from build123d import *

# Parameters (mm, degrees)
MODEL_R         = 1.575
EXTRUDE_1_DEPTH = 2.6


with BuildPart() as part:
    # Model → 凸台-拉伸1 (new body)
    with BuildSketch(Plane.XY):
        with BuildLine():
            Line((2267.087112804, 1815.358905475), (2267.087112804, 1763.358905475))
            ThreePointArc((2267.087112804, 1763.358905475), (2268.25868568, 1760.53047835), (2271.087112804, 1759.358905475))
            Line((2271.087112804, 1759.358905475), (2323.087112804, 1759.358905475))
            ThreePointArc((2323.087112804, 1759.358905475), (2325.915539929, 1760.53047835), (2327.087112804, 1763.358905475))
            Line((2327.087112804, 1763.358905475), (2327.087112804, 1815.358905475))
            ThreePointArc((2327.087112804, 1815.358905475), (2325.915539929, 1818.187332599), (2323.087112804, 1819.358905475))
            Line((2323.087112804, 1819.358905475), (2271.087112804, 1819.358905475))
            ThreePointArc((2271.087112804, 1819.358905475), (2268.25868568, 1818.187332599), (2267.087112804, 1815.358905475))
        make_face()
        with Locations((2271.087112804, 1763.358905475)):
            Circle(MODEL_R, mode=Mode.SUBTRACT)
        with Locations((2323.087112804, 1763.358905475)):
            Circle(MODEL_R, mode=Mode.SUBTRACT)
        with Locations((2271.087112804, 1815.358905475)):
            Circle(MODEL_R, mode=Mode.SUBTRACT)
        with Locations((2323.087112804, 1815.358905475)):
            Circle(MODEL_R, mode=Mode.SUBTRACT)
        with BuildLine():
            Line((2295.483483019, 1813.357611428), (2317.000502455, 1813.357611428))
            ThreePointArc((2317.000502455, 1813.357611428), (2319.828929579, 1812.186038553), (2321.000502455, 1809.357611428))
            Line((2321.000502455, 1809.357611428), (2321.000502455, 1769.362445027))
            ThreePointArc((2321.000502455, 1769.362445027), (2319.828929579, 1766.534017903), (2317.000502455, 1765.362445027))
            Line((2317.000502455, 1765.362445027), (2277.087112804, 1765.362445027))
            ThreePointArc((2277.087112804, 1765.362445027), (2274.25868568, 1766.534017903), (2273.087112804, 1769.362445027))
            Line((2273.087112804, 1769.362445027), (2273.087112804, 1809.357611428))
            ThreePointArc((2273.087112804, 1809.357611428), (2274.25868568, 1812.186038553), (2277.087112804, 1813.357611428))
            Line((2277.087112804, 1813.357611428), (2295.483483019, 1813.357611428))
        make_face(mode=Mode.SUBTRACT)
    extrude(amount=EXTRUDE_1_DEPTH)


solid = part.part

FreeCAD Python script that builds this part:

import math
import FreeCAD as App
import Part
import Sketcher
from FreeCAD import Vector
Q = App.Units.Quantity

doc = App.newDocument("Part")
body = doc.addObject("PartDesign::Body", "Body")

# Sketch on XY plane
sketch1 = body.newObject("Sketcher::SketchObject", "Sketch")
sketch1.AttachmentSupport = (doc.getObject("XY_Plane"), [""])
sketch1.MapMode = "FlatFace"
sketch1.addGeometry(Part.LineSegment(Vector(2267.1, 1815.4, 0), Vector(2267.1, 1763.4, 0)), False)
sketch1.addGeometry(Part.ArcOfCircle(Part.Circle(Vector(2271.1, 1763.4, 0), Vector(0, 0, 1), 4), math.radians(-180), math.radians(-90)), False)
sketch1.addGeometry(Part.LineSegment(Vector(2271.1, 1759.4, 0), Vector(2323.1, 1759.4, 0)), False)
sketch1.addGeometry(Part.ArcOfCircle(Part.Circle(Vector(2323.1, 1763.4, 0), Vector(0, 0, 1), 4), math.radians(-90), math.radians(0)), False)
sketch1.addGeometry(Part.LineSegment(Vector(2327.1, 1763.4, 0), Vector(2327.1, 1815.4, 0)), False)
sketch1.addGeometry(Part.ArcOfCircle(Part.Circle(Vector(2323.1, 1815.4, 0), Vector(0, 0, 1), 4), math.radians(0), math.radians(90)), False)
sketch1.addGeometry(Part.LineSegment(Vector(2323.1, 1819.4, 0), Vector(2271.1, 1819.4, 0)), False)
sketch1.addGeometry(Part.ArcOfCircle(Part.Circle(Vector(2271.1, 1815.4, 0), Vector(0, 0, 1), 4), math.radians(90), math.radians(180)), False)
sketch1.addGeometry(Part.Circle(Vector(2271.1, 1763.4, 0), Vector(0, 0, 1), 1.6), False)
sketch1.addGeometry(Part.Circle(Vector(2323.1, 1763.4, 0), Vector(0, 0, 1), 1.6), False)
sketch1.addGeometry(Part.LineSegment(Vector(2277.1, 1813.4, 0), Vector(2317, 1813.4, 0)), False)
sketch1.addGeometry(Part.ArcOfCircle(Part.Circle(Vector(2317, 1809.4, 0), Vector(0, 0, 1), 4), math.radians(0), math.radians(90)), False)
sketch1.addGeometry(Part.LineSegment(Vector(2321, 1809.4, 0), Vector(2321, 1769.4, 0)), False)
sketch1.addGeometry(Part.ArcOfCircle(Part.Circle(Vector(2317, 1769.4, 0), Vector(0, 0, 1), 4), math.radians(-90), math.radians(0)), False)
sketch1.addGeometry(Part.LineSegment(Vector(2317, 1765.4, 0), Vector(2277.1, 1765.4, 0)), False)
sketch1.addGeometry(Part.ArcOfCircle(Part.Circle(Vector(2277.1, 1769.4, 0), Vector(0, 0, 1), 4), math.radians(-180), math.radians(-90)), False)
sketch1.addGeometry(Part.LineSegment(Vector(2273.1, 1769.4, 0), Vector(2273.1, 1809.4, 0)), False)
sketch1.addGeometry(Part.ArcOfCircle(Part.Circle(Vector(2277.1, 1809.4, 0), Vector(0, 0, 1), 4), math.radians(90), math.radians(180)), False)
sketch1.addGeometry(Part.Circle(Vector(2271.1, 1815.4, 0), Vector(0, 0, 1), 1.6), False)
sketch1.addGeometry(Part.Circle(Vector(2323.1, 1815.4, 0), Vector(0, 0, 1), 1.6), False)
sketch1.addConstraint(Sketcher.Constraint("Tangent", 0, 2, 1, 1))
sketch1.addConstraint(Sketcher.Constraint("Tangent", 1, 2, 2, 1))
sketch1.addConstraint(Sketcher.Constraint("Tangent", 2, 2, 3, 1))
sketch1.addConstraint(Sketcher.Constraint("Tangent", 3, 2, 4, 1))
sketch1.addConstraint(Sketcher.Constraint("Tangent", 4, 2, 5, 1))
sketch1.addConstraint(Sketcher.Constraint("Tangent", 5, 2, 6, 1))
sketch1.addConstraint(Sketcher.Constraint("Tangent", 6, 2, 7, 1))
sketch1.addConstraint(Sketcher.Constraint("Tangent", 7, 2, 0, 1))
sketch1.addConstraint(Sketcher.Constraint("Tangent", 10, 2, 11, 2))
sketch1.addConstraint(Sketcher.Constraint("Tangent", 11, 1, 12, 1))
sketch1.addConstraint(Sketcher.Constraint("Tangent", 12, 2, 13, 2))
sketch1.addConstraint(Sketcher.Constraint("Tangent", 13, 1, 14, 1))
sketch1.addConstraint(Sketcher.Constraint("Tangent", 14, 2, 15, 2))
sketch1.addConstraint(Sketcher.Constraint("Tangent", 15, 1, 16, 1))
sketch1.addConstraint(Sketcher.Constraint("Tangent", 16, 2, 17, 2))
sketch1.addConstraint(Sketcher.Constraint("Tangent", 17, 1, 10, 1))
sketch1.addConstraint(Sketcher.Constraint("Vertical", 0))
sketch1.addConstraint(Sketcher.Constraint("Horizontal", 2))
sketch1.addConstraint(Sketcher.Constraint("Vertical", 4))
sketch1.addConstraint(Sketcher.Constraint("Horizontal", 6))
sketch1.addConstraint(Sketcher.Constraint("Horizontal", 10))
sketch1.addConstraint(Sketcher.Constraint("Vertical", 12))
sketch1.addConstraint(Sketcher.Constraint("Horizontal", 14))
sketch1.addConstraint(Sketcher.Constraint("Vertical", 16))
sketch1.addConstraint(Sketcher.Constraint("Coincident", 8, 3, 1, 3))
sketch1.addConstraint(Sketcher.Constraint("Coincident", 9, 3, 3, 3))
sketch1.addConstraint(Sketcher.Constraint("Coincident", 18, 3, 7, 3))
sketch1.addConstraint(Sketcher.Constraint("Coincident", 19, 3, 5, 3))
sketch1.addConstraint(Sketcher.Constraint("Equal", 1, 3))
sketch1.addConstraint(Sketcher.Constraint("Equal", 3, 5))
sketch1.addConstraint(Sketcher.Constraint("Equal", 5, 7))
sketch1.addConstraint(Sketcher.Constraint("Equal", 8, 9))
sketch1.addConstraint(Sketcher.Constraint("Equal", 7, 11))
sketch1.addConstraint(Sketcher.Constraint("Equal", 11, 13))
sketch1.addConstraint(Sketcher.Constraint("Equal", 13, 15))
sketch1.addConstraint(Sketcher.Constraint("Equal", 15, 17))
sketch1.addConstraint(Sketcher.Constraint("Equal", 9, 18))
sketch1.addConstraint(Sketcher.Constraint("Equal", 18, 19))
sketch1.addConstraint(Sketcher.Constraint("Equal", 6, 0))
sketch1.addConstraint(Sketcher.Constraint("Radius", 1, Q("4 mm")))
sketch1.addConstraint(Sketcher.Constraint("Diameter", 8, Q("3.15 mm")))
sketch1.addConstraint(Sketcher.Constraint("DistanceX", 2, 1, 2, 2, Q("52 mm")))
sketch1.addConstraint(Sketcher.Constraint("DistanceX", 1, 3, 15, 3, Q("6 mm")))
sketch1.addConstraint(Sketcher.Constraint("DistanceX", 10, 1, 10, 2, Q("39.91339 mm")))
sketch1.addConstraint(Sketcher.Constraint("DistanceY", 12, 2, 12, 1, Q("39.995166 mm")))
sketch1.addConstraint(Sketcher.Constraint("DistanceY", -1, 1, 11, 3, Q("1809.357611 mm")))
sketch1.addConstraint(Sketcher.Constraint("DistanceY", 9, 3, 13, 3, Q("6.00354 mm")))
sketch1.addConstraint(Sketcher.Constraint("DistanceX", -1, 1, 1, 3, Q("2271.087113 mm")))
pad1 = body.newObject("PartDesign::Pad", "Pad")
pad1.Profile = sketch1
pad1.Length = 2.6

doc.recompute()
